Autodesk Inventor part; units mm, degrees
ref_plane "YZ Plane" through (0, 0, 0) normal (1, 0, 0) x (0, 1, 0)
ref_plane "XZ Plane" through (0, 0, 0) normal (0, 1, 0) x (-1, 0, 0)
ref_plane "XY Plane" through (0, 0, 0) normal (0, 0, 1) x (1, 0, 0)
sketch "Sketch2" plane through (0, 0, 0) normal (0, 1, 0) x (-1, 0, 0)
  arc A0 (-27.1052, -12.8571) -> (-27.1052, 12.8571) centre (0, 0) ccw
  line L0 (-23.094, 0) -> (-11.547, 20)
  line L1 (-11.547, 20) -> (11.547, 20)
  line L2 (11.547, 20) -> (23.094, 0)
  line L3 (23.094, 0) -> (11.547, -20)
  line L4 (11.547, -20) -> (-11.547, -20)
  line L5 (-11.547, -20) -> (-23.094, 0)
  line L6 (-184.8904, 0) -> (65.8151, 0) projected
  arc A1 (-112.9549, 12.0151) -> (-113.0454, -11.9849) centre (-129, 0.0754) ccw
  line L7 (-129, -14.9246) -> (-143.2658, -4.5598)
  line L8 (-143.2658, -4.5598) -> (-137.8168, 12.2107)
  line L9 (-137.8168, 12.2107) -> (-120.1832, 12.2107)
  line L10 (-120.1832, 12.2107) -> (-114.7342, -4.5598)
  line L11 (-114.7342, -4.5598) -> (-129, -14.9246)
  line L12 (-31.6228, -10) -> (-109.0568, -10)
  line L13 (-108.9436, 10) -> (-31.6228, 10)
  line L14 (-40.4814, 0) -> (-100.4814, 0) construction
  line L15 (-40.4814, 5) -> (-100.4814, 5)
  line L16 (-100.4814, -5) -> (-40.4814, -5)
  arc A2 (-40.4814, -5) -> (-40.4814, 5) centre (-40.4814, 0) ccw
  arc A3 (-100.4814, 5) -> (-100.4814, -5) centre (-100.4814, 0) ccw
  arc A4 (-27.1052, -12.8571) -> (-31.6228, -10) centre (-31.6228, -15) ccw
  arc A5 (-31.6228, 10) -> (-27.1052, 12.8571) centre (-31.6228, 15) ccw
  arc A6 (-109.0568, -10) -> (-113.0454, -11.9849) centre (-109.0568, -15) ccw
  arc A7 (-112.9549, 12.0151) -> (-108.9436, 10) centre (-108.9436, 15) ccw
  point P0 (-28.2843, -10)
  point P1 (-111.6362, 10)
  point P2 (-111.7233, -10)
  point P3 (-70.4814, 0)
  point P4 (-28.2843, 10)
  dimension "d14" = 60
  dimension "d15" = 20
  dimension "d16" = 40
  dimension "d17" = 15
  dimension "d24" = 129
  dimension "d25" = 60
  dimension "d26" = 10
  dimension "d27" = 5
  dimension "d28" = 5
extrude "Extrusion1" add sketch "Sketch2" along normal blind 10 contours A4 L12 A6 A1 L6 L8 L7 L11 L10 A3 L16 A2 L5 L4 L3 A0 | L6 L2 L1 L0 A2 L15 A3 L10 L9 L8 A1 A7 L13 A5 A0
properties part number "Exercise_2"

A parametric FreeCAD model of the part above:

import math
import FreeCAD as App
import Part
import Sketcher
Q = App.Units.Quantity


def add_polygon(sketch, points):
    """Adds a closed chain of lines whose ends are joined by coincident constraints."""
    first, n = sketch.GeometryCount, len(points)
    for a, b in zip(points, points[1:] + points[:1]):
        sketch.addGeometry(Part.LineSegment(App.Vector(*a, 0), App.Vector(*b, 0)), False)
    for i in range(n):
        sketch.addConstraint(Sketcher.Constraint("Coincident", first + i, 2, first + (i + 1) % n, 1))

doc = App.newDocument("Part")
body = doc.addObject("PartDesign::Body", "Body")

sketch1 = body.newObject("Sketcher::SketchObject", "Sketch")
sketch1.AttachmentSupport = (doc.getObject("XZ_Plane"), [""])
sketch1.MapMode = "FlatFace"
sketch1.addGeometry(Part.ArcOfCircle(Part.Circle(App.Vector(31.6228, -15, 0), App.Vector(0, 0, 1), 5.000073), math.radians(90), math.radians(154.62292)), False)
sketch1.addGeometry(Part.ArcOfCircle(Part.Circle(App.Vector(0, 0, 0), App.Vector(0, 0, 1), 29.999948), math.radians(25.37689), math.radians(334.62311)), False)
sketch1.addGeometry(Part.ArcOfCircle(Part.Circle(App.Vector(31.6228, 15, 0), App.Vector(0, 0, 1), 5), math.radians(-154.62292), math.radians(-90)), False)
sketch1.addGeometry(Part.LineSegment(App.Vector(31.6228, 10, 0), App.Vector(108.9436, 10, 0)), False)
sketch1.addGeometry(Part.ArcOfCircle(Part.Circle(App.Vector(108.9436, 15, 0), App.Vector(0, 0, 1), 5.000016), math.radians(-90), math.radians(-36.653778)), False)
sketch1.addGeometry(Part.ArcOfCircle(Part.Circle(App.Vector(129, 0.0754, 0), App.Vector(0, 0, 1), 20.000042), math.radians(-142.913868), math.radians(143.345821)), False)
sketch1.addGeometry(Part.ArcOfCircle(Part.Circle(App.Vector(109.0568, -15, 0), App.Vector(0, 0, 1), 5), math.radians(37.086706), math.radians(90)), False)
sketch1.addGeometry(Part.LineSegment(App.Vector(109.0568, -10, 0), App.Vector(31.6228, -10, 0)), False)
add_polygon(sketch1, [(143.2658, -4.5598), (137.8168, 12.2107), (120.1832, 12.2107), (114.7342, -4.5598), (129, -14.9246)])
sketch1.addGeometry(Part.ArcOfCircle(Part.Circle(App.Vector(100.4814, 0, 0), App.Vector(0, 0, 1), 5), math.radians(-90), math.radians(90)), False)
sketch1.addGeometry(Part.LineSegment(App.Vector(100.4814, 5, 0), App.Vector(40.4814, 5, 0)), False)
sketch1.addGeometry(Part.ArcOfCircle(Part.Circle(App.Vector(40.4814, 0, 0), App.Vector(0, 0, 1), 5), math.radians(90), math.radians(270)), False)
sketch1.addGeometry(Part.LineSegment(App.Vector(40.4814, -5, 0), App.Vector(100.4814, -5, 0)), False)
add_polygon(sketch1, [(11.547, -20), (23.094, 0), (11.547, 20), (-11.547, 20), (-23.094, 0), (-11.547, -20)])
sketch1.addConstraint(Sketcher.Constraint("Tangent", 0, 2, 1, 2))
sketch1.addConstraint(Sketcher.Constraint("Tangent", 1, 1, 2, 1))
sketch1.addConstraint(Sketcher.Constraint("Tangent", 2, 2, 3, 1))
sketch1.addConstraint(Sketcher.Constraint("Tangent", 3, 2, 4, 1))
sketch1.addConstraint(Sketcher.Constraint("Tangent", 4, 2, 5, 2))
sketch1.addConstraint(Sketcher.Constraint("Tangent", 5, 1, 6, 1))
sketch1.addConstraint(Sketcher.Constraint("Tangent", 6, 2, 7, 1))
sketch1.addConstraint(Sketcher.Constraint("Tangent", 7, 2, 0, 1))
sketch1.addConstraint(Sketcher.Constraint("Tangent", 13, 2, 14, 1))
sketch1.addConstraint(Sketcher.Constraint("Tangent", 14, 2, 15, 1))
sketch1.addConstraint(Sketcher.Constraint("Tangent", 15, 2, 16, 1))
sketch1.addConstraint(Sketcher.Constraint("Tangent", 16, 2, 13, 1))
sketch1.addConstraint(Sketcher.Constraint("Horizontal", 3))
sketch1.addConstraint(Sketcher.Constraint("Horizontal", 7))
sketch1.addConstraint(Sketcher.Constraint("Horizontal", 9))
sketch1.addConstraint(Sketcher.Constraint("Horizontal", 14))
sketch1.addConstraint(Sketcher.Constraint("Horizontal", 16))
sketch1.addConstraint(Sketcher.Constraint("Horizontal", 19))
sketch1.addConstraint(Sketcher.Constraint("Horizontal", 22))
sketch1.addConstraint(Sketcher.Constraint("Coincident", 1, 3, -1, 1))
sketch1.addConstraint(Sketcher.Constraint("Equal", 0, 2))
sketch1.addConstraint(Sketcher.Constraint("Equal", 2, 4))
sketch1.addConstraint(Sketcher.Constraint("Equal", 4, 6))
sketch1.addConstraint(Sketcher.Constraint("Equal", 6, 13))
sketch1.addConstraint(Sketcher.Constraint("Symmetric", 17, 2, 20, 2, -1, 1))
sketch1.addConstraint(Sketcher.Constraint("Symmetric", 18, 2, 21, 2, -1, 1))
sketch1.addConstraint(Sketcher.Constraint("PointOnObject", 13, 3, -1))
sketch1.addConstraint(Sketcher.Constraint("PointOnObject", 17, 2, -1))
sketch1.addConstraint(Sketcher.Constraint("Parallel", 17, 20))
sketch1.addConstraint(Sketcher.Constraint("Horizontal", 10, 2, 12, 2))
sketch1.addConstraint(Sketcher.Constraint("Vertical", 0, 3, 2, 3))
sketch1.addConstraint(Sketcher.Constraint("Vertical", 5, 3, 11, 2))
sketch1.addConstraint(Sketcher.Constraint("Vertical", 19, 2, 21, 2))
sketch1.addConstraint(Sketcher.Constraint("Equal", 8, 10))
sketch1.addConstraint(Sketcher.Constraint("Equal", 10, 11))
sketch1.addConstraint(Sketcher.Constraint("Equal", 11, 12))
sketch1.addConstraint(Sketcher.Constraint("Radius", 0, 5.0))
sketch1.addConstraint(Sketcher.Constraint("Radius", 1, 30.0))
sketch1.addConstraint(Sketcher.Constraint("Radius", 5, 20.0))
sketch1.addConstraint(Sketcher.Constraint("DistanceX", 14, 2, 14, 1, 60.0))
sketch1.addConstraint(Sketcher.Constraint("Angle", 17, Q("60 deg")))
sketch1.addConstraint(Sketcher.Constraint("DistanceY", 0, 3, -1, 1, 15.0))
sketch1.addConstraint(Sketcher.Constraint("DistanceX", -1, 1, 5, 3, 129.0))
sketch1.addConstraint(Sketcher.Constraint("DistanceY", -1, 1, 18, 2, 20.0))
sketch1.addConstraint(Sketcher.Constraint("DistanceY", 11, 2, 5, 3, 15.0))
sketch1.addConstraint(Sketcher.Constraint("Angle", 8, Q("107.9998 deg")))
sketch1.addConstraint(Sketcher.Constraint("Angle", 11, Q("-36.0002 deg")))
sketch1.addConstraint(Sketcher.Constraint("DistanceX", 7, 2, 7, 1, 77.434))
sketch1.addConstraint(Sketcher.Constraint("DistanceX", 19, 2, 19, 1, 23.094))
sketch1.addConstraint(Sketcher.Constraint("DistanceX", 9, 2, 9, 1, 17.6336))
sketch1.addConstraint(Sketcher.Constraint("DistanceX", 13, 3, 5, 1, 12.564))
pad1 = body.newObject("PartDesign::Pad", "Pad")
pad1.Profile = sketch1
pad1.Length = 10
pad1.Reversed = True

doc.recompute()
